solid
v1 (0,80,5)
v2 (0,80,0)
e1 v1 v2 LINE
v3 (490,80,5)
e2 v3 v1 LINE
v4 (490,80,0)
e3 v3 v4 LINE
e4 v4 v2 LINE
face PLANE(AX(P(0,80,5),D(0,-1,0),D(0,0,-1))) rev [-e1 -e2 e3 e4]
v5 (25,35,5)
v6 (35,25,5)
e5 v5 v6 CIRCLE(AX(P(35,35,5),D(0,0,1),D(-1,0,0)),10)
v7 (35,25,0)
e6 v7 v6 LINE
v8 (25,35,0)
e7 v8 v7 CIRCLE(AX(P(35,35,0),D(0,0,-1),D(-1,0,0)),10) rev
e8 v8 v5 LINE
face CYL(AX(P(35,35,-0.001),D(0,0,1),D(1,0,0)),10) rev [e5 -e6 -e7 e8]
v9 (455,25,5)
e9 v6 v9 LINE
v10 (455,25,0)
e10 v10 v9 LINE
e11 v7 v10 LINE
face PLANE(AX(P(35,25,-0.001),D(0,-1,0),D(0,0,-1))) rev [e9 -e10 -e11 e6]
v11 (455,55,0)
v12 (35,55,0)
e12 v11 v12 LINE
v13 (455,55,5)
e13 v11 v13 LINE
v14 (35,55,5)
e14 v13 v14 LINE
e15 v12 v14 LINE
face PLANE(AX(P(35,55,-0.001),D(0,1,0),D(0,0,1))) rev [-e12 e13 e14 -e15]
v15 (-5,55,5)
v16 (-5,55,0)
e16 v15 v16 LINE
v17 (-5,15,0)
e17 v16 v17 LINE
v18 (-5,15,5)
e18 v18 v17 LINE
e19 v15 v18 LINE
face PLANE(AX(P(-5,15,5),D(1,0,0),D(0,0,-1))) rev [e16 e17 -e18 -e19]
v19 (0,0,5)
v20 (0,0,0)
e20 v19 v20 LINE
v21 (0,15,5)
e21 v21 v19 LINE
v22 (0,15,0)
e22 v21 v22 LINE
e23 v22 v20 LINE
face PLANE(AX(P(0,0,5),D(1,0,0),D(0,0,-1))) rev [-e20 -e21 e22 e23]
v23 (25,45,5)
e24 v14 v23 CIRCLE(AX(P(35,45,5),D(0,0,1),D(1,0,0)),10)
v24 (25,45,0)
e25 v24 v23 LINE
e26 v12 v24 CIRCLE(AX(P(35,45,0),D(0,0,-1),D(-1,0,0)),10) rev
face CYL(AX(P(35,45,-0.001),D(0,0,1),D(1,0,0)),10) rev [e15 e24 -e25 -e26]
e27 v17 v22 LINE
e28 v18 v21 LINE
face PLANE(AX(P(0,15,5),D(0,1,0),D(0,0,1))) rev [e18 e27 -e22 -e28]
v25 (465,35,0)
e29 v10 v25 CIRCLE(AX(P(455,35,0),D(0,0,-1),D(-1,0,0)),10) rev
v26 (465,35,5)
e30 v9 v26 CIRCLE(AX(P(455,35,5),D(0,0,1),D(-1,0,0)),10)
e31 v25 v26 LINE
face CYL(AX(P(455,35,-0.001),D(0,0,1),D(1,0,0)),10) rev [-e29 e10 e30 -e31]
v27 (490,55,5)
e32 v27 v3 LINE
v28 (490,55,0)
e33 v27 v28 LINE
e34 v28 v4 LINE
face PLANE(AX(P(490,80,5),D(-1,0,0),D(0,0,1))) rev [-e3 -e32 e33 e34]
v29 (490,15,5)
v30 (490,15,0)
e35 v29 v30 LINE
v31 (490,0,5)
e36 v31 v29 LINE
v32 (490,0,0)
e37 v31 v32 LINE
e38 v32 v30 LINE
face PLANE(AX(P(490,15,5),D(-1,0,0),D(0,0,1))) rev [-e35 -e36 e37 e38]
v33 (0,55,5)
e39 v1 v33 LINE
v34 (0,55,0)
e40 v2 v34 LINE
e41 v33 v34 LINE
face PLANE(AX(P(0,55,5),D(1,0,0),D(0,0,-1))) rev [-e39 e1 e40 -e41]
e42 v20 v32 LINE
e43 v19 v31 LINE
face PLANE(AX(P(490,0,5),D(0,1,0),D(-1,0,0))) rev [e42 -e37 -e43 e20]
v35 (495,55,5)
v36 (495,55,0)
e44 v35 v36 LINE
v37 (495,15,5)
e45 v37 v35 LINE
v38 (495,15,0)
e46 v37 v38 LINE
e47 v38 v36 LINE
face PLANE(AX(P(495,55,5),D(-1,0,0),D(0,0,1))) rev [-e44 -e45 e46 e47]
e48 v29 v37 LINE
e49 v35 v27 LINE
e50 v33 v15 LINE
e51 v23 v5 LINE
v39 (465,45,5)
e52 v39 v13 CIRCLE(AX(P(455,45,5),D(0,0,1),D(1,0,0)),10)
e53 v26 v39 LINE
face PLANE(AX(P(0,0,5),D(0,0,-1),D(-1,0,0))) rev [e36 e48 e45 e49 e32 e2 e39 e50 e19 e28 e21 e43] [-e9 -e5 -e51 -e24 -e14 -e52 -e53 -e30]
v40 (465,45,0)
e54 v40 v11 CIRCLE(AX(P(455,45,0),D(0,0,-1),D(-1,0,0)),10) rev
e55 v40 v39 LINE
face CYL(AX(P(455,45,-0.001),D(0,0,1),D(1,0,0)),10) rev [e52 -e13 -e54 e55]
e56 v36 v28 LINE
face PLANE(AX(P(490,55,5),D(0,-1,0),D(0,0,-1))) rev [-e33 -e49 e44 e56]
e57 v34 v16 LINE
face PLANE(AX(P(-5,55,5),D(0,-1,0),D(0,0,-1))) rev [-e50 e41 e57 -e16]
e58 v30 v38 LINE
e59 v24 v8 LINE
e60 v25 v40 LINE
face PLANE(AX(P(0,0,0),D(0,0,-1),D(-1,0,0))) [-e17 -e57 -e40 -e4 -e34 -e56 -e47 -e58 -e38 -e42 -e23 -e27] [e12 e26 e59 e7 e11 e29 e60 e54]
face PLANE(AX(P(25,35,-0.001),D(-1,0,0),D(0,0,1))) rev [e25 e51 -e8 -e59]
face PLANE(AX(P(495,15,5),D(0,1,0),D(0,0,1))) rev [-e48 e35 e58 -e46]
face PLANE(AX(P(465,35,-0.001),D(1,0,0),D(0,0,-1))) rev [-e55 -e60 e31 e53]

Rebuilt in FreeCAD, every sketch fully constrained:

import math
import FreeCAD as App
import Part
import Sketcher

doc = App.newDocument("Part")
body = doc.addObject("PartDesign::Body", "Body")

# Sketch on XY plane
sketch1 = doc.addObject("Sketcher::SketchObject", "Sketch")
body.addObject(sketch1)
sketch1.AttachmentSupport = (doc.XY_Plane, [""])
sketch1.MapMode = "FlatFace"
sketch1.addGeometry([
    Part.LineSegment(App.Vector(0, 15, 0), App.Vector(0, 0, 0)),  # 0
    Part.LineSegment(App.Vector(0, 0, 0), App.Vector(490, 0, 0)),  # 1
    Part.LineSegment(App.Vector(490, 0, 0), App.Vector(490, 15, 0)),  # 2
    Part.LineSegment(App.Vector(490, 15, 0), App.Vector(495, 15, 0)),  # 3
    Part.LineSegment(App.Vector(495, 15, 0), App.Vector(495, 55, 0)),  # 4
    Part.LineSegment(App.Vector(495, 55, 0), App.Vector(490, 55, 0)),  # 5
    Part.LineSegment(App.Vector(490, 55, 0), App.Vector(490, 80, 0)),  # 6
    Part.LineSegment(App.Vector(490, 80, 0), App.Vector(0, 80, 0)),  # 7
    Part.LineSegment(App.Vector(0, 80, 0), App.Vector(0, 55, 0)),  # 8
    Part.LineSegment(App.Vector(0, 55, 0), App.Vector(-5, 55, 0)),  # 9
    Part.LineSegment(App.Vector(-5, 55, 0), App.Vector(-5, 15, 0)),  # 10
    Part.LineSegment(App.Vector(-5, 15, 0), App.Vector(0, 15, 0)),  # 11
], False)
sketch1.addConstraint([
    Sketcher.Constraint("Coincident", 0, 2, 1, 1),
    Sketcher.Constraint("Coincident", 1, 2, 2, 1),
    Sketcher.Constraint("Coincident", 2, 2, 3, 1),
    Sketcher.Constraint("Coincident", 3, 2, 4, 1),
    Sketcher.Constraint("Coincident", 4, 2, 5, 1),
    Sketcher.Constraint("Coincident", 5, 2, 6, 1),
    Sketcher.Constraint("Coincident", 6, 2, 7, 1),
    Sketcher.Constraint("Coincident", 7, 2, 8, 1),
    Sketcher.Constraint("Coincident", 8, 2, 9, 1),
    Sketcher.Constraint("Coincident", 9, 2, 10, 1),
    Sketcher.Constraint("Coincident", 10, 2, 11, 1),
    Sketcher.Constraint("Coincident", 11, 2, 0, 1),
    Sketcher.Constraint("Vertical", 0),
    Sketcher.Constraint("Horizontal", 1),
    Sketcher.Constraint("Vertical", 2),
    Sketcher.Constraint("Horizontal", 3),
    Sketcher.Constraint("Vertical", 4),
    Sketcher.Constraint("Horizontal", 5),
    Sketcher.Constraint("Vertical", 6),
    Sketcher.Constraint("Horizontal", 7),
    Sketcher.Constraint("Vertical", 8),
    Sketcher.Constraint("Horizontal", 9),
    Sketcher.Constraint("Vertical", 10),
    Sketcher.Constraint("Horizontal", 11),
    Sketcher.Constraint("Coincident", 0, 2, -1, 1),
    Sketcher.Constraint("PointOnObject", 7, 2, -2),
    Sketcher.Constraint("Horizontal", 5, 2, 8, 2),
    Sketcher.Constraint("Horizontal", 3, 2, 10, 2),
    Sketcher.Constraint("Vertical", 2, 2, 5, 2),
    Sketcher.Constraint("Equal", 5, 9),
    Sketcher.Constraint("DistanceX", 1, 1, 1, 2, 490.0),
    Sketcher.Constraint("DistanceX", 3, 1, 3, 2, 5.0),
    Sketcher.Constraint("DistanceY", 0, 2, 0, 1, 15.0),
    Sketcher.Constraint("DistanceY", 4, 1, 4, 2, 40.0),
    Sketcher.Constraint("DistanceY", 6, 1, 6, 2, 25.0),
])
pad1 = doc.addObject("PartDesign::Pad", "Pad")
body.addObject(pad1)
pad1.Profile = sketch1
pad1.Length = 5

# Sketch on XY plane
sketch2 = doc.addObject("Sketcher::SketchObject", "Sketch001")
body.addObject(sketch2)
sketch2.AttachmentSupport = (doc.XY_Plane, [""])
sketch2.MapMode = "FlatFace"
sketch2.AttachmentOffset = App.Placement(App.Vector(0, 0, 5), App.Rotation())
sketch2.addGeometry([
    Part.LineSegment(App.Vector(35, 25, 0), App.Vector(455, 25, 0)),  # 0
    Part.ArcOfCircle(Part.Circle(App.Vector(455, 35, 0), App.Vector(0, 0, 1), 10), math.radians(-90), math.radians(0)),  # 1
    Part.LineSegment(App.Vector(465, 35, 0), App.Vector(465, 45, 0)),  # 2
    Part.ArcOfCircle(Part.Circle(App.Vector(455, 45, 0), App.Vector(0, 0, 1), 10), math.radians(0), math.radians(90)),  # 3
    Part.LineSegment(App.Vector(455, 55, 0), App.Vector(35, 55, 0)),  # 4
    Part.ArcOfCircle(Part.Circle(App.Vector(35, 45, 0), App.Vector(0, 0, 1), 10), math.radians(90), math.radians(180)),  # 5
    Part.LineSegment(App.Vector(25, 45, 0), App.Vector(25, 35, 0)),  # 6
    Part.ArcOfCircle(Part.Circle(App.Vector(35, 35, 0), App.Vector(0, 0, 1), 10), math.radians(180), math.radians(270)),  # 7
], False)
sketch2.addConstraint([
    Sketcher.Constraint("Tangent", 0, 2, 1, 1),
    Sketcher.Constraint("Tangent", 1, 2, 2, 1),
    Sketcher.Constraint("Tangent", 2, 2, 3, 1),
    Sketcher.Constraint("Tangent", 3, 2, 4, 1),
    Sketcher.Constraint("Tangent", 4, 2, 5, 1),
    Sketcher.Constraint("Tangent", 5, 2, 6, 1),
    Sketcher.Constraint("Tangent", 6, 2, 7, 1),
    Sketcher.Constraint("Tangent", 7, 2, 0, 1),
    Sketcher.Constraint("Horizontal", 0),
    Sketcher.Constraint("Vertical", 2),
    Sketcher.Constraint("Horizontal", 4),
    Sketcher.Constraint("Vertical", 6),
    Sketcher.Constraint("Equal", 1, 3),
    Sketcher.Constraint("Equal", 3, 5),
    Sketcher.Constraint("Equal", 5, 7),
    Sketcher.Constraint("Radius", 1, 10.0),
    Sketcher.Constraint("DistanceX", 0, 1, 0, 2, 420.0),
    Sketcher.Constraint("DistanceY", 2, 1, 2, 2, 10.0),
    Sketcher.Constraint("DistanceX", -1, 1, 1, 3, 455.0),
    Sketcher.Constraint("DistanceY", -1, 1, 1, 3, 35.0),
])
pocket1 = doc.addObject("PartDesign::Pocket", "Pocket")
body.addObject(pocket1)
pocket1.Profile = sketch2
pocket1.Type = "UpToFirst"

doc.recompute()
